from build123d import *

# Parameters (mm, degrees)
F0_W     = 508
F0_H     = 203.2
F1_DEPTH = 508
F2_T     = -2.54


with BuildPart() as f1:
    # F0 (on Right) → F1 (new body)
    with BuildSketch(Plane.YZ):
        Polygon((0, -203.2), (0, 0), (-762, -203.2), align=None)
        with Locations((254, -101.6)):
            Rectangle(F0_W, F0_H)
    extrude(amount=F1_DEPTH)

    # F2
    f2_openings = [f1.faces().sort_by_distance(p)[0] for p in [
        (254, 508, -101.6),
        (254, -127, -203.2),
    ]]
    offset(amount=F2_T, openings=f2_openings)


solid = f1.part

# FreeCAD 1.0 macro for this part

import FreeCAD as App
import Part
import Sketcher

V = App.Vector
Q = App.Units.Quantity


def faces_at(feature, points):
    """Names of the faces that lie closest to the given points."""
    faces = feature.Shape.Faces
    near = lambda p: min(range(len(faces)), key=lambda i: faces[i].distToShape(Part.Vertex(*p))[0])
    return sorted({f"Face{near(p) + 1}" for p in points})


def add_polygon(sketch, points):
    """Adds a closed chain of lines whose ends are joined by coincident constraints."""
    first, n = sketch.GeometryCount, len(points)
    for a, b in zip(points, points[1:] + points[:1]):
        sketch.addGeometry(Part.LineSegment(App.Vector(*a, 0), App.Vector(*b, 0)), False)
    for i in range(n):
        sketch.addConstraint(Sketcher.Constraint("Coincident", first + i, 2, first + (i + 1) % n, 1))

doc = App.newDocument("Part")
body = doc.addObject("PartDesign::Body", "Body")

# Sketch on YZ plane
sketch1 = doc.addObject("Sketcher::SketchObject", "Sketch")
body.addObject(sketch1)
sketch1.AttachmentSupport = (doc.YZ_Plane, [""])
sketch1.MapMode = "FlatFace"
add_polygon(sketch1, [(0, 0), (-762, -203), (508, -203), (508, 0)])  # lines 0-3
sketch1.addConstraint([
    Sketcher.Constraint("Horizontal", 1),
    Sketcher.Constraint("Vertical", 2),
    Sketcher.Constraint("Horizontal", 3),
    Sketcher.Constraint("Coincident", 3, 2, -1, 1),
    Sketcher.Constraint("DistanceX", 1, 1, 1, 2, Q("50 in")),
    Sketcher.Constraint("DistanceX", 3, 2, 3, 1, Q("20 in")),
    Sketcher.Constraint("DistanceY", 2, 1, 2, 2, Q("8 in")),
])
pad1 = doc.addObject("PartDesign::Pad", "Pad")
body.addObject(pad1)
pad1.Profile = sketch1
pad1.Length = Q("20 in")
doc.recompute()

thickness = doc.addObject("PartDesign::Thickness", "Thickness")
body.addObject(thickness)
thickness.Base = (pad1, faces_at(pad1, [(254, 508, -101.6), (254, -127, -203.2)]))
thickness.Value = Q("0.1 in")
thickness.Reversed = True
thickness.Join = "Arc"

doc.recompute()
